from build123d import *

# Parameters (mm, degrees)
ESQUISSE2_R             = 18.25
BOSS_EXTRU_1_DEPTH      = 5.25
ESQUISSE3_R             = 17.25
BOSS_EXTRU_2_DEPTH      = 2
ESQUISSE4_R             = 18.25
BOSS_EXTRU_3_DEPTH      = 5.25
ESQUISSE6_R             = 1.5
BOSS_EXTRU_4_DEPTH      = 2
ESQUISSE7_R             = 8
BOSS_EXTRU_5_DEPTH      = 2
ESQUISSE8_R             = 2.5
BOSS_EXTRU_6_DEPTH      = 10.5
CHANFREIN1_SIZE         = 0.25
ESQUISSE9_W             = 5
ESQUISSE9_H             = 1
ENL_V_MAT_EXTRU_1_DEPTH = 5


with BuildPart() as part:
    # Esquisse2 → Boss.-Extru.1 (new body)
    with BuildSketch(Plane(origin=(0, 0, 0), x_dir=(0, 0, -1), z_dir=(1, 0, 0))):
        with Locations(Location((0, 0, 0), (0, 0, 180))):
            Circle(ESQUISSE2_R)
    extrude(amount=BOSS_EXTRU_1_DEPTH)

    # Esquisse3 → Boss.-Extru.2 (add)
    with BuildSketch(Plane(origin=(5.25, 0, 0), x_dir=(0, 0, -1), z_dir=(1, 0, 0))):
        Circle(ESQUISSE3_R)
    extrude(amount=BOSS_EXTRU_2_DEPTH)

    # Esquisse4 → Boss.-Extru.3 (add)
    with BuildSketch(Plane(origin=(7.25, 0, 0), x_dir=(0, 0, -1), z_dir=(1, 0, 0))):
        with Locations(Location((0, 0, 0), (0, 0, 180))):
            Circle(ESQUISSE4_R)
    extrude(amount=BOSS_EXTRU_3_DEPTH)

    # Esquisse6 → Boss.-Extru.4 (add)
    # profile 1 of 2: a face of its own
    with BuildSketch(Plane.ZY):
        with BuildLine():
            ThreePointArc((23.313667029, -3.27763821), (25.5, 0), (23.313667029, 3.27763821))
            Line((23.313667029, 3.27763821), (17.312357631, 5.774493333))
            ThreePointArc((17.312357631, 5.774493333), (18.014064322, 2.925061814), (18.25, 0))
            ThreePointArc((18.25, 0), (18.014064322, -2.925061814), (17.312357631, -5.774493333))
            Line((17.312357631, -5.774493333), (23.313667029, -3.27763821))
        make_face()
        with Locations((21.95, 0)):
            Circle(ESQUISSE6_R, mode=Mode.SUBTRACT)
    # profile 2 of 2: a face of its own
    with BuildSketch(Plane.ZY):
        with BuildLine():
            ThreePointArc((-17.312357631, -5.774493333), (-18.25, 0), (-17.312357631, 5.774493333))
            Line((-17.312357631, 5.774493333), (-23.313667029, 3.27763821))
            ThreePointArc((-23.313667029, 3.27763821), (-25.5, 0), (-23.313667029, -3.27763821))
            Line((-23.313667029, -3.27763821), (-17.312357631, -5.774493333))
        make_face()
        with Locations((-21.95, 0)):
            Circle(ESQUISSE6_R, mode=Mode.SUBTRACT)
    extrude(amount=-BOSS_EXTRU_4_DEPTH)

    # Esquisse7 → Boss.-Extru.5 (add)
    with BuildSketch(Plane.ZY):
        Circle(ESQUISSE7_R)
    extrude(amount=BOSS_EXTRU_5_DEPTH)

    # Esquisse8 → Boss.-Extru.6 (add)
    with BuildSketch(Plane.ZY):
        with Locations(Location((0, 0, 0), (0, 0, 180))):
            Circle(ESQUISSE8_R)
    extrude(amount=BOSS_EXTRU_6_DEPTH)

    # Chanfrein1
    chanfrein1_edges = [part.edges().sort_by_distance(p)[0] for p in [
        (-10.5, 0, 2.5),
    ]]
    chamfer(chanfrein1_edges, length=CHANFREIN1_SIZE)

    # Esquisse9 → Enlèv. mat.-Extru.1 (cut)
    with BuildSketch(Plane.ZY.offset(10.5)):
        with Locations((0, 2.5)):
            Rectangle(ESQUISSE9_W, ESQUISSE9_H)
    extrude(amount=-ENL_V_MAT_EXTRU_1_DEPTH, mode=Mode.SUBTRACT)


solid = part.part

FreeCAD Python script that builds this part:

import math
import FreeCAD as App
import Part
import Sketcher
Q = App.Units.Quantity


def edges_at(feature, points):
    """Names of the edges that pass closest to the given points."""
    edges = feature.Shape.Edges
    near = lambda p: min(range(len(edges)), key=lambda i: edges[i].distToShape(Part.Vertex(*p))[0])
    return sorted({f"Edge{near(p) + 1}" for p in points})


def add_polygon(sketch, points):
    """Adds a closed chain of lines whose ends are joined by coincident constraints."""
    first, n = sketch.GeometryCount, len(points)
    for a, b in zip(points, points[1:] + points[:1]):
        sketch.addGeometry(Part.LineSegment(App.Vector(*a, 0), App.Vector(*b, 0)), False)
    for i in range(n):
        sketch.addConstraint(Sketcher.Constraint("Coincident", first + i, 2, first + (i + 1) % n, 1))

doc = App.newDocument("Part")
body = doc.addObject("PartDesign::Body", "Body")

sketch1 = body.newObject("Sketcher::SketchObject", "Sketch")
sketch1.AttachmentSupport = (doc.getObject("YZ_Plane"), [""])
sketch1.MapMode = "FlatFace"
sketch1.addGeometry(Part.Circle(App.Vector(0, 0, 0), App.Vector(0, 0, 1), 18), False)
sketch1.addConstraint(Sketcher.Constraint("Coincident", 0, 3, -1, 1))
sketch1.addConstraint(Sketcher.Constraint("Diameter", 0, Q("36.5 mm")))
pad1 = body.newObject("PartDesign::Pad", "Pad")
pad1.Profile = sketch1
pad1.Length = 5.25

sketch2 = body.newObject("Sketcher::SketchObject", "Sketch001")
sketch2.AttachmentSupport = (doc.getObject("YZ_Plane"), [""])
sketch2.MapMode = "FlatFace"
sketch2.AttachmentOffset = App.Placement(App.Vector(0, 0, 5.25), App.Rotation())
sketch2.addGeometry(Part.Circle(App.Vector(0, 0, 0), App.Vector(0, 0, 1), 17), False)
sketch2.addConstraint(Sketcher.Constraint("Coincident", 0, 3, -1, 1))
sketch2.addConstraint(Sketcher.Constraint("Diameter", 0, Q("34.5 mm")))
pad2 = body.newObject("PartDesign::Pad", "Pad001")
pad2.Profile = sketch2
pad2.Length = 2

sketch3 = body.newObject("Sketcher::SketchObject", "Sketch002")
sketch3.AttachmentSupport = (doc.getObject("YZ_Plane"), [""])
sketch3.MapMode = "FlatFace"
sketch3.AttachmentOffset = App.Placement(App.Vector(0, 0, 7.25), App.Rotation())
sketch3.addGeometry(Part.Circle(App.Vector(0, 0, 0), App.Vector(0, 0, 1), 18), False)
sketch3.addConstraint(Sketcher.Constraint("Coincident", 0, 3, -1, 1))
sketch3.addConstraint(Sketcher.Constraint("Diameter", 0, Q("36.5 mm")))
pad3 = body.newObject("PartDesign::Pad", "Pad002")
pad3.Profile = sketch3
pad3.Length = 5.25

sketch4 = body.newObject("Sketcher::SketchObject", "Sketch003")
sketch4.AttachmentSupport = (doc.getObject("YZ_Plane"), [""])
sketch4.MapMode = "FlatFace"
sketch4.addGeometry(Part.ArcOfCircle(Part.Circle(App.Vector(0, 21.9, 0), App.Vector(0, 0, 1), 3.5), math.radians(23), math.radians(157)), False)
sketch4.addGeometry(Part.LineSegment(App.Vector(3.3, 23.3, 0), App.Vector(5.8, 17.3, 0)), False)
sketch4.addGeometry(Part.ArcOfCircle(Part.Circle(App.Vector(0, 0, 0), App.Vector(0, 0, 1), 18.2), math.radians(71.55), math.radians(90)), False)
sketch4.addGeometry(Part.ArcOfCircle(Part.Circle(App.Vector(0, 0, 0), App.Vector(0, 0, 1), 18.2), math.radians(90), math.radians(108.45)), False)
sketch4.addGeometry(Part.LineSegment(App.Vector(-5.8, 17.3, 0), App.Vector(-3.3, 23.3, 0)), False)
sketch4.addGeometry(Part.Circle(App.Vector(0, 21.9, 0), App.Vector(0, 0, 1), 1.5), False)
sketch4.addGeometry(Part.ArcOfCircle(Part.Circle(App.Vector(0, 0, 0), App.Vector(0, 0, 1), 18.2), math.radians(-108), math.radians(-72)), False)
sketch4.addGeometry(Part.LineSegment(App.Vector(5.8, -17.3, 0), App.Vector(3.3, -23.3, 0)), False)
sketch4.addGeometry(Part.ArcOfCircle(Part.Circle(App.Vector(0, -21.9, 0), App.Vector(0, 0, 1), 3.5), math.radians(-157), math.radians(-23)), False)
sketch4.addGeometry(Part.LineSegment(App.Vector(-3.3, -23.3, 0), App.Vector(-5.8, -17.3, 0)), False)
sketch4.addGeometry(Part.Circle(App.Vector(0, -21.9, 0), App.Vector(0, 0, 1), 1.5), False)
sketch4.addConstraint(Sketcher.Constraint("Tangent", 0, 1, 1, 1))
sketch4.addConstraint(Sketcher.Constraint("Coincident", 1, 2, 2, 1))
sketch4.addConstraint(Sketcher.Constraint("Tangent", 2, 2, 3, 1))
sketch4.addConstraint(Sketcher.Constraint("Coincident", 3, 2, 4, 1))
sketch4.addConstraint(Sketcher.Constraint("Tangent", 4, 2, 0, 2))
sketch4.addConstraint(Sketcher.Constraint("Coincident", 6, 2, 7, 1))
sketch4.addConstraint(Sketcher.Constraint("Tangent", 7, 2, 8, 2))
sketch4.addConstraint(Sketcher.Constraint("Tangent", 8, 1, 9, 1))
sketch4.addConstraint(Sketcher.Constraint("Coincident", 9, 2, 6, 1))
sketch4.addConstraint(Sketcher.Constraint("Coincident", 2, 3, -1, 1))
sketch4.addConstraint(Sketcher.Constraint("Coincident", 6, 3, -1, 1))
sketch4.addConstraint(Sketcher.Constraint("Coincident", 5, 3, 0, 3))
sketch4.addConstraint(Sketcher.Constraint("Coincident", 10, 3, 8, 3))
sketch4.addConstraint(Sketcher.Constraint("Equal", 2, 3))
sketch4.addConstraint(Sketcher.Constraint("Equal", 3, 6))
sketch4.addConstraint(Sketcher.Constraint("Equal", 0, 8))
sketch4.addConstraint(Sketcher.Constraint("Equal", 5, 10))
sketch4.addConstraint(Sketcher.Constraint("Symmetric", 0, 3, 8, 3, -1, 1))
sketch4.addConstraint(Sketcher.Constraint("Symmetric", 0, 1, 4, 2, -2))
sketch4.addConstraint(Sketcher.Constraint("PointOnObject", 2, 2, -2))
sketch4.addConstraint(Sketcher.Constraint("Parallel", 4, 7))
sketch4.addConstraint(Sketcher.Constraint("Parallel", 1, 9))
sketch4.addConstraint(Sketcher.Constraint("Diameter", 5, Q("3 mm")))
sketch4.addConstraint(Sketcher.Constraint("Radius", 0, Q("3.55 mm")))
sketch4.addConstraint(Sketcher.Constraint("Radius", 2, Q("18.25 mm")))
sketch4.addConstraint(Sketcher.Constraint("Distance", 1, Q("6.5 mm")))
sketch4.addConstraint(Sketcher.Constraint("DistanceY", 8, 3, 0, 3, Q("43.9 mm")))
pad4 = body.newObject("PartDesign::Pad", "Pad003")
pad4.Profile = sketch4
pad4.Length = 2

sketch5 = body.newObject("Sketcher::SketchObject", "Sketch004")
sketch5.AttachmentSupport = (doc.getObject("YZ_Plane"), [""])
sketch5.MapMode = "FlatFace"
sketch5.addGeometry(Part.Circle(App.Vector(0, 0, 0), App.Vector(0, 0, 1), 8), False)
sketch5.addConstraint(Sketcher.Constraint("Coincident", 0, 3, -1, 1))
sketch5.addConstraint(Sketcher.Constraint("Diameter", 0, Q("16 mm")))
pad5 = body.newObject("PartDesign::Pad", "Pad004")
pad5.Profile = sketch5
pad5.Length = 2
pad5.Reversed = True

sketch6 = body.newObject("Sketcher::SketchObject", "Sketch005")
sketch6.AttachmentSupport = (doc.getObject("YZ_Plane"), [""])
sketch6.MapMode = "FlatFace"
sketch6.addGeometry(Part.Circle(App.Vector(0, 0, 0), App.Vector(0, 0, 1), 2.5), False)
sketch6.addConstraint(Sketcher.Constraint("Coincident", 0, 3, -1, 1))
sketch6.addConstraint(Sketcher.Constraint("Diameter", 0, Q("5 mm")))
pad6 = body.newObject("PartDesign::Pad", "Pad005")
pad6.Profile = sketch6
pad6.Length = 10.5
pad6.Reversed = True
doc.recompute()

chamfer = body.newObject("PartDesign::Chamfer", "Chamfer")
chamfer.Base = (pad6, edges_at(pad6, [(-10.5, 0, 2.5)]))
chamfer.Size = 0.25

sketch7 = body.newObject("Sketcher::SketchObject", "Sketch006")
sketch7.AttachmentSupport = (doc.getObject("YZ_Plane"), [""])
sketch7.MapMode = "FlatFace"
sketch7.AttachmentOffset = App.Placement(App.Vector(0, 0, -10.5), App.Rotation())
add_polygon(sketch7, [(3, -2.5), (2, -2.5), (2, 2.5), (3, 2.5)])
sketch7.addConstraint(Sketcher.Constraint("Horizontal", 0))
sketch7.addConstraint(Sketcher.Constraint("Vertical", 1))
sketch7.addConstraint(Sketcher.Constraint("Horizontal", 2))
sketch7.addConstraint(Sketcher.Constraint("Vertical", 3))
sketch7.addConstraint(Sketcher.Constraint("DistanceX", 0, 2, 0, 1, Q("1 mm")))
sketch7.addConstraint(Sketcher.Constraint("DistanceY", 1, 1, 1, 2, Q("5 mm")))
sketch7.addConstraint(Sketcher.Constraint("DistanceX", -1, 1, 0, 2, Q("2 mm")))
sketch7.addConstraint(Sketcher.Constraint("DistanceY", 0, 2, -1, 1, Q("2.5 mm")))
pocket1 = body.newObject("PartDesign::Pocket", "Pocket")
pocket1.Profile = sketch7
pocket1.Length = 5
pocket1.Reversed = True

doc.recompute()
